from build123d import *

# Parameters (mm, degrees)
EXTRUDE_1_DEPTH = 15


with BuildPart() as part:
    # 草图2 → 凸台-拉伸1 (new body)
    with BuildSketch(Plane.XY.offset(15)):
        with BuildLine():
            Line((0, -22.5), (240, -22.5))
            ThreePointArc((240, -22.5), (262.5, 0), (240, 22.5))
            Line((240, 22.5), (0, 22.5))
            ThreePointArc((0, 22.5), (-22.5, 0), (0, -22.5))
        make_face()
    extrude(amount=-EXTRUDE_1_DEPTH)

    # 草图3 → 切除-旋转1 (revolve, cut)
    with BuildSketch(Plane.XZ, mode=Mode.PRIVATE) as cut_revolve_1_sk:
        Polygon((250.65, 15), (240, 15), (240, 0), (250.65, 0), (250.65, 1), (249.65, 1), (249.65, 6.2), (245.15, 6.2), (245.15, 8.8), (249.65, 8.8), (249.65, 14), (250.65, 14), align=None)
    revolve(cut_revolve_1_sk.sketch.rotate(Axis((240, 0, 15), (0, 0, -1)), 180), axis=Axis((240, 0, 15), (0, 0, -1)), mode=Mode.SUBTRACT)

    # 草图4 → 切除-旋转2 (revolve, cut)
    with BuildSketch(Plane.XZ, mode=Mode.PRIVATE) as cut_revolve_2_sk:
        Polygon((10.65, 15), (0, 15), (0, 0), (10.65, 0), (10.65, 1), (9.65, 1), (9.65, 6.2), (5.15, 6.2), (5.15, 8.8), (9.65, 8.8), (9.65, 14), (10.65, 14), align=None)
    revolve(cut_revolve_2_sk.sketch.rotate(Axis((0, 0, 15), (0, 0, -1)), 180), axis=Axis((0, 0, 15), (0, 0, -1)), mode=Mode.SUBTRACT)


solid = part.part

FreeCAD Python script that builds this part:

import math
import FreeCAD as App
import Part
import Sketcher

V = App.Vector
Q = App.Units.Quantity

doc = App.newDocument("Part")
body = doc.addObject("PartDesign::Body", "Body")

# Sketch on XY plane
sketch1 = body.newObject("Sketcher::SketchObject", "Sketch")
sketch1.AttachmentSupport = (doc.getObject("XY_Plane"), [""])
sketch1.MapMode = "FlatFace"
sketch1.AttachmentOffset = App.Placement(V(0, 0, 15), App.Rotation())
sketch1.addGeometry([
    Part.LineSegment(V(0, -22, 0), V(240, -22, 0)),
    Part.ArcOfCircle(Part.Circle(V(240, 0, 0), V(0, 0, 1), 22), math.radians(-90), math.radians(90)),
    Part.LineSegment(V(240, 22, 0), V(0, 22, 0)),
    Part.ArcOfCircle(Part.Circle(V(0, 0, 0), V(0, 0, 1), 22), math.radians(90), math.radians(270)),
], False)
sketch1.addConstraint([
    Sketcher.Constraint("Tangent", 0, 2, 1, 1),
    Sketcher.Constraint("Tangent", 1, 2, 2, 1),
    Sketcher.Constraint("Tangent", 2, 2, 3, 1),
    Sketcher.Constraint("Tangent", 3, 2, 0, 1),
    Sketcher.Constraint("Horizontal", 0),
    Sketcher.Constraint("Horizontal", 2),
    Sketcher.Constraint("Coincident", 3, 3, -1, 1),
    Sketcher.Constraint("Radius", 1, Q("22.5 mm")),
    Sketcher.Constraint("DistanceX", 0, 1, 0, 2, Q("240 mm")),
])
pad1 = body.newObject("PartDesign::Pad", "Pad")
pad1.Profile = sketch1
pad1.Length = 15
pad1.Reversed = True

# Sketch on XZ plane
sketch2 = body.newObject("Sketcher::SketchObject", "Sketch001")
sketch2.AttachmentSupport = (doc.getObject("XZ_Plane"), [""])
sketch2.MapMode = "FlatFace"
sketch2.addGeometry([
    Part.LineSegment(V(250.7, 15, 0), V(240, 15, 0)),  # 0
    Part.LineSegment(V(240, 15, 0), V(240, 0, 0)),  # 1
    Part.LineSegment(V(240, 0, 0), V(250.7, 0, 0)),  # 2
    Part.LineSegment(V(250.7, 0, 0), V(250.7, 1, 0)),  # 3
    Part.LineSegment(V(250.7, 1, 0), V(249.7, 1, 0)),  # 4
    Part.LineSegment(V(249.7, 1, 0), V(249.7, 6.2, 0)),  # 5
    Part.LineSegment(V(249.7, 6.2, 0), V(245.2, 6.2, 0)),  # 6
    Part.LineSegment(V(245.2, 6.2, 0), V(245.2, 8.8, 0)),  # 7
    Part.LineSegment(V(245.2, 8.8, 0), V(249.7, 8.8, 0)),  # 8
    Part.LineSegment(V(249.7, 8.8, 0), V(249.7, 14, 0)),  # 9
    Part.LineSegment(V(249.7, 14, 0), V(250.7, 14, 0)),  # 10
    Part.LineSegment(V(250.7, 14, 0), V(250.7, 15, 0)),  # 11
], False)
sketch2.addGeometry(Part.LineSegment(V(240, 15, 0), V(240, 0, 0)), True)  # axis
sketch2.addConstraint([
    Sketcher.Constraint("Coincident", 0, 2, 1, 1),
    Sketcher.Constraint("Coincident", 1, 2, 2, 1),
    Sketcher.Constraint("Coincident", 2, 2, 3, 1),
    Sketcher.Constraint("Coincident", 3, 2, 4, 1),
    Sketcher.Constraint("Coincident", 4, 2, 5, 1),
    Sketcher.Constraint("Coincident", 5, 2, 6, 1),
    Sketcher.Constraint("Coincident", 6, 2, 7, 1),
    Sketcher.Constraint("Coincident", 7, 2, 8, 1),
    Sketcher.Constraint("Coincident", 8, 2, 9, 1),
    Sketcher.Constraint("Coincident", 9, 2, 10, 1),
    Sketcher.Constraint("Coincident", 10, 2, 11, 1),
    Sketcher.Constraint("Coincident", 11, 2, 0, 1),
    Sketcher.Constraint("Horizontal", 0),
    Sketcher.Constraint("Vertical", 1),
    Sketcher.Constraint("Horizontal", 2),
    Sketcher.Constraint("Vertical", 3),
    Sketcher.Constraint("Horizontal", 4),
    Sketcher.Constraint("Vertical", 5),
    Sketcher.Constraint("Horizontal", 6),
    Sketcher.Constraint("Vertical", 7),
    Sketcher.Constraint("Horizontal", 8),
    Sketcher.Constraint("Vertical", 9),
    Sketcher.Constraint("Horizontal", 10),
    Sketcher.Constraint("Vertical", 11),
    Sketcher.Constraint("Vertical", 12),
    Sketcher.Constraint("Coincident", 12, 1, 0, 2),
    Sketcher.Constraint("PointOnObject", 1, 2, -1),
    Sketcher.Constraint("PointOnObject", 12, 2, -1),
    Sketcher.Constraint("Vertical", 5, 2, 8, 2),
    Sketcher.Constraint("Vertical", 3, 2, 10, 2),
    Sketcher.Constraint("Equal", 10, 3),
    Sketcher.Constraint("Equal", 5, 9),
    Sketcher.Constraint("Equal", 3, 11),
    Sketcher.Constraint("DistanceX", 4, 2, 4, 1, Q("1 mm")),
    Sketcher.Constraint("DistanceY", 1, 2, 1, 1, Q("15 mm")),
    Sketcher.Constraint("DistanceX", 6, 2, 6, 1, Q("4.5 mm")),
    Sketcher.Constraint("DistanceY", 5, 1, 5, 2, Q("5.2 mm")),
    Sketcher.Constraint("DistanceX", -1, 1, 0, 2, Q("240 mm")),
    Sketcher.Constraint("DistanceX", 0, 2, 0, 1, Q("10.65 mm")),
])
groove = body.newObject("PartDesign::Groove", "Groove")
groove.Profile = sketch2
groove.ReferenceAxis = (sketch2, ["Axis0"])
groove.Angle = 360

# Sketch on XZ plane
sketch3 = body.newObject("Sketcher::SketchObject", "Sketch002")
sketch3.AttachmentSupport = (doc.getObject("XZ_Plane"), [""])
sketch3.MapMode = "FlatFace"
sketch3.addGeometry([
    Part.LineSegment(V(10.7, 15, 0), V(0, 15, 0)),  # 0
    Part.LineSegment(V(0, 15, 0), V(0, 0, 0)),  # 1
    Part.LineSegment(V(0, 0, 0), V(10.7, 0, 0)),  # 2
    Part.LineSegment(V(10.7, 0, 0), V(10.7, 1, 0)),  # 3
    Part.LineSegment(V(10.7, 1, 0), V(9.7, 1, 0)),  # 4
    Part.LineSegment(V(9.7, 1, 0), V(9.7, 6.2, 0)),  # 5
    Part.LineSegment(V(9.7, 6.2, 0), V(5.2, 6.2, 0)),  # 6
    Part.LineSegment(V(5.2, 6.2, 0), V(5.2, 8.8, 0)),  # 7
    Part.LineSegment(V(5.2, 8.8, 0), V(9.7, 8.8, 0)),  # 8
    Part.LineSegment(V(9.7, 8.8, 0), V(9.7, 14, 0)),  # 9
    Part.LineSegment(V(9.7, 14, 0), V(10.7, 14, 0)),  # 10
    Part.LineSegment(V(10.7, 14, 0), V(10.7, 15, 0)),  # 11
], False)
sketch3.addConstraint([
    Sketcher.Constraint("Coincident", 0, 2, 1, 1),
    Sketcher.Constraint("Coincident", 1, 2, 2, 1),
    Sketcher.Constraint("Coincident", 2, 2, 3, 1),
    Sketcher.Constraint("Coincident", 3, 2, 4, 1),
    Sketcher.Constraint("Coincident", 4, 2, 5, 1),
    Sketcher.Constraint("Coincident", 5, 2, 6, 1),
    Sketcher.Constraint("Coincident", 6, 2, 7, 1),
    Sketcher.Constraint("Coincident", 7, 2, 8, 1),
    Sketcher.Constraint("Coincident", 8, 2, 9, 1),
    Sketcher.Constraint("Coincident", 9, 2, 10, 1),
    Sketcher.Constraint("Coincident", 10, 2, 11, 1),
    Sketcher.Constraint("Coincident", 11, 2, 0, 1),
    Sketcher.Constraint("Horizontal", 0),
    Sketcher.Constraint("Vertical", 1),
    Sketcher.Constraint("Horizontal", 2),
    Sketcher.Constraint("Vertical", 3),
    Sketcher.Constraint("Horizontal", 4),
    Sketcher.Constraint("Vertical", 5),
    Sketcher.Constraint("Horizontal", 6),
    Sketcher.Constraint("Vertical", 7),
    Sketcher.Constraint("Horizontal", 8),
    Sketcher.Constraint("Vertical", 9),
    Sketcher.Constraint("Horizontal", 10),
    Sketcher.Constraint("Vertical", 11),
    Sketcher.Constraint("Coincident", 1, 2, -1, 1),
    Sketcher.Constraint("Vertical", 5, 2, 8, 2),
    Sketcher.Constraint("Vertical", 3, 2, 10, 2),
    Sketcher.Constraint("Equal", 10, 3),
    Sketcher.Constraint("Equal", 5, 9),
    Sketcher.Constraint("Equal", 3, 11),
    Sketcher.Constraint("DistanceX", 4, 2, 4, 1, Q("1 mm")),
    Sketcher.Constraint("DistanceY", 1, 2, 1, 1, Q("15 mm")),
    Sketcher.Constraint("DistanceX", 6, 2, 6, 1, Q("4.5 mm")),
    Sketcher.Constraint("DistanceY", 5, 1, 5, 2, Q("5.2 mm")),
    Sketcher.Constraint("DistanceX", 0, 2, 0, 1, Q("10.65 mm")),
])
groove2 = body.newObject("PartDesign::Groove", "Groove001")
groove2.Profile = sketch3
groove2.ReferenceAxis = (sketch3, ["V_Axis"])
groove2.Angle = 360

doc.recompute()
